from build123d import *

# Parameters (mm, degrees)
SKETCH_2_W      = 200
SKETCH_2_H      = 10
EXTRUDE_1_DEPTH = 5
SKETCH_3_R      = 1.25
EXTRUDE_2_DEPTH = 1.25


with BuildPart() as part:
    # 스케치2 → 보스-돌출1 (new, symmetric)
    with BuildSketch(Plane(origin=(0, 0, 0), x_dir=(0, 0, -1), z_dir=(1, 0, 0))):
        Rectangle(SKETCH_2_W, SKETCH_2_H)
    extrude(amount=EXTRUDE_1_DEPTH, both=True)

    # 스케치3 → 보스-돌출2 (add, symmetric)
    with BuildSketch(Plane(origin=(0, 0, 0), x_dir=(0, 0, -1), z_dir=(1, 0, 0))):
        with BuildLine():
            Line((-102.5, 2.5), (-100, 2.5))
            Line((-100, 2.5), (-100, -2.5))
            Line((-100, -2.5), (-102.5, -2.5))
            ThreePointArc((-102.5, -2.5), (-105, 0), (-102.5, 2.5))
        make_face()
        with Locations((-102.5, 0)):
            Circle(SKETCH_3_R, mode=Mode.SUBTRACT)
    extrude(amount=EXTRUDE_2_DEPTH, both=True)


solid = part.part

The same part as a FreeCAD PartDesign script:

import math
import FreeCAD as App
import Part
import Sketcher

V = App.Vector

doc = App.newDocument("Part")
body = doc.addObject("PartDesign::Body", "Body")

# Sketch on YZ plane
sketch1 = doc.addObject("Sketcher::SketchObject", "Sketch")
body.addObject(sketch1)
sketch1.AttachmentSupport = (doc.YZ_Plane, [""])
sketch1.MapMode = "FlatFace"
sketch1.addGeometry(Part.LineSegment(V(5, 100, 0), V(-5, 100, 0)), False)
sketch1.addGeometry(Part.LineSegment(V(-5, 100, 0), V(-5, -100, 0)), False)
sketch1.addGeometry(Part.LineSegment(V(-5, -100, 0), V(5, -100, 0)), False)
sketch1.addGeometry(Part.LineSegment(V(5, -100, 0), V(5, 100, 0)), False)
sketch1.addConstraint(Sketcher.Constraint("Coincident", 0, 2, 1, 1))
sketch1.addConstraint(Sketcher.Constraint("Coincident", 1, 2, 2, 1))
sketch1.addConstraint(Sketcher.Constraint("Coincident", 2, 2, 3, 1))
sketch1.addConstraint(Sketcher.Constraint("Coincident", 3, 2, 0, 1))
sketch1.addConstraint(Sketcher.Constraint("Horizontal", 0))
sketch1.addConstraint(Sketcher.Constraint("Vertical", 1))
sketch1.addConstraint(Sketcher.Constraint("Horizontal", 2))
sketch1.addConstraint(Sketcher.Constraint("Vertical", 3))
sketch1.addConstraint(Sketcher.Constraint("Symmetric", 0, 2, 2, 2, -1, 1))
sketch1.addConstraint(Sketcher.Constraint("DistanceX", 0, 2, 0, 1, 10.0))
sketch1.addConstraint(Sketcher.Constraint("DistanceY", 1, 2, 1, 1, 200.0))
pad1 = doc.addObject("PartDesign::Pad", "Pad")
body.addObject(pad1)
pad1.Profile = sketch1
pad1.Length = 10
pad1.Midplane = True

# Sketch on YZ plane
sketch2 = doc.addObject("Sketcher::SketchObject", "Sketch001")
body.addObject(sketch2)
sketch2.AttachmentSupport = (doc.YZ_Plane, [""])
sketch2.MapMode = "FlatFace"
sketch2.addGeometry(Part.LineSegment(V(2.5, 100, 0), V(2.5, 102.5, 0)), False)
sketch2.addGeometry(Part.ArcOfCircle(Part.Circle(V(0, 102.5, 0), V(0, 0, 1), 2.5), math.radians(0), math.radians(180)), False)
sketch2.addGeometry(Part.LineSegment(V(-2.5, 102.5, 0), V(-2.5, 100, 0)), False)
sketch2.addGeometry(Part.LineSegment(V(-2.5, 100, 0), V(2.5, 100, 0)), False)
sketch2.addGeometry(Part.Circle(V(0, 102.5, 0), V(0, 0, 1), 1.2), False)
sketch2.addConstraint(Sketcher.Constraint("Tangent", 0, 2, 1, 1))
sketch2.addConstraint(Sketcher.Constraint("Tangent", 1, 2, 2, 1))
sketch2.addConstraint(Sketcher.Constraint("Coincident", 2, 2, 3, 1))
sketch2.addConstraint(Sketcher.Constraint("Coincident", 3, 2, 0, 1))
sketch2.addConstraint(Sketcher.Constraint("Vertical", 0))
sketch2.addConstraint(Sketcher.Constraint("Vertical", 2))
sketch2.addConstraint(Sketcher.Constraint("Horizontal", 3))
sketch2.addConstraint(Sketcher.Constraint("Coincident", 4, 3, 1, 3))
sketch2.addConstraint(Sketcher.Constraint("PointOnObject", 1, 3, -2))
sketch2.addConstraint(Sketcher.Constraint("Diameter", 4, 2.5))
sketch2.addConstraint(Sketcher.Constraint("Radius", 1, 2.5))
sketch2.addConstraint(Sketcher.Constraint("DistanceY", 0, 1, 0, 2, 2.5))
sketch2.addConstraint(Sketcher.Constraint("DistanceY", -1, 1, 2, 2, 100.0))
pad2 = doc.addObject("PartDesign::Pad", "Pad001")
body.addObject(pad2)
pad2.Profile = sketch2
pad2.Length = 2.5
pad2.Midplane = True

doc.recompute()
